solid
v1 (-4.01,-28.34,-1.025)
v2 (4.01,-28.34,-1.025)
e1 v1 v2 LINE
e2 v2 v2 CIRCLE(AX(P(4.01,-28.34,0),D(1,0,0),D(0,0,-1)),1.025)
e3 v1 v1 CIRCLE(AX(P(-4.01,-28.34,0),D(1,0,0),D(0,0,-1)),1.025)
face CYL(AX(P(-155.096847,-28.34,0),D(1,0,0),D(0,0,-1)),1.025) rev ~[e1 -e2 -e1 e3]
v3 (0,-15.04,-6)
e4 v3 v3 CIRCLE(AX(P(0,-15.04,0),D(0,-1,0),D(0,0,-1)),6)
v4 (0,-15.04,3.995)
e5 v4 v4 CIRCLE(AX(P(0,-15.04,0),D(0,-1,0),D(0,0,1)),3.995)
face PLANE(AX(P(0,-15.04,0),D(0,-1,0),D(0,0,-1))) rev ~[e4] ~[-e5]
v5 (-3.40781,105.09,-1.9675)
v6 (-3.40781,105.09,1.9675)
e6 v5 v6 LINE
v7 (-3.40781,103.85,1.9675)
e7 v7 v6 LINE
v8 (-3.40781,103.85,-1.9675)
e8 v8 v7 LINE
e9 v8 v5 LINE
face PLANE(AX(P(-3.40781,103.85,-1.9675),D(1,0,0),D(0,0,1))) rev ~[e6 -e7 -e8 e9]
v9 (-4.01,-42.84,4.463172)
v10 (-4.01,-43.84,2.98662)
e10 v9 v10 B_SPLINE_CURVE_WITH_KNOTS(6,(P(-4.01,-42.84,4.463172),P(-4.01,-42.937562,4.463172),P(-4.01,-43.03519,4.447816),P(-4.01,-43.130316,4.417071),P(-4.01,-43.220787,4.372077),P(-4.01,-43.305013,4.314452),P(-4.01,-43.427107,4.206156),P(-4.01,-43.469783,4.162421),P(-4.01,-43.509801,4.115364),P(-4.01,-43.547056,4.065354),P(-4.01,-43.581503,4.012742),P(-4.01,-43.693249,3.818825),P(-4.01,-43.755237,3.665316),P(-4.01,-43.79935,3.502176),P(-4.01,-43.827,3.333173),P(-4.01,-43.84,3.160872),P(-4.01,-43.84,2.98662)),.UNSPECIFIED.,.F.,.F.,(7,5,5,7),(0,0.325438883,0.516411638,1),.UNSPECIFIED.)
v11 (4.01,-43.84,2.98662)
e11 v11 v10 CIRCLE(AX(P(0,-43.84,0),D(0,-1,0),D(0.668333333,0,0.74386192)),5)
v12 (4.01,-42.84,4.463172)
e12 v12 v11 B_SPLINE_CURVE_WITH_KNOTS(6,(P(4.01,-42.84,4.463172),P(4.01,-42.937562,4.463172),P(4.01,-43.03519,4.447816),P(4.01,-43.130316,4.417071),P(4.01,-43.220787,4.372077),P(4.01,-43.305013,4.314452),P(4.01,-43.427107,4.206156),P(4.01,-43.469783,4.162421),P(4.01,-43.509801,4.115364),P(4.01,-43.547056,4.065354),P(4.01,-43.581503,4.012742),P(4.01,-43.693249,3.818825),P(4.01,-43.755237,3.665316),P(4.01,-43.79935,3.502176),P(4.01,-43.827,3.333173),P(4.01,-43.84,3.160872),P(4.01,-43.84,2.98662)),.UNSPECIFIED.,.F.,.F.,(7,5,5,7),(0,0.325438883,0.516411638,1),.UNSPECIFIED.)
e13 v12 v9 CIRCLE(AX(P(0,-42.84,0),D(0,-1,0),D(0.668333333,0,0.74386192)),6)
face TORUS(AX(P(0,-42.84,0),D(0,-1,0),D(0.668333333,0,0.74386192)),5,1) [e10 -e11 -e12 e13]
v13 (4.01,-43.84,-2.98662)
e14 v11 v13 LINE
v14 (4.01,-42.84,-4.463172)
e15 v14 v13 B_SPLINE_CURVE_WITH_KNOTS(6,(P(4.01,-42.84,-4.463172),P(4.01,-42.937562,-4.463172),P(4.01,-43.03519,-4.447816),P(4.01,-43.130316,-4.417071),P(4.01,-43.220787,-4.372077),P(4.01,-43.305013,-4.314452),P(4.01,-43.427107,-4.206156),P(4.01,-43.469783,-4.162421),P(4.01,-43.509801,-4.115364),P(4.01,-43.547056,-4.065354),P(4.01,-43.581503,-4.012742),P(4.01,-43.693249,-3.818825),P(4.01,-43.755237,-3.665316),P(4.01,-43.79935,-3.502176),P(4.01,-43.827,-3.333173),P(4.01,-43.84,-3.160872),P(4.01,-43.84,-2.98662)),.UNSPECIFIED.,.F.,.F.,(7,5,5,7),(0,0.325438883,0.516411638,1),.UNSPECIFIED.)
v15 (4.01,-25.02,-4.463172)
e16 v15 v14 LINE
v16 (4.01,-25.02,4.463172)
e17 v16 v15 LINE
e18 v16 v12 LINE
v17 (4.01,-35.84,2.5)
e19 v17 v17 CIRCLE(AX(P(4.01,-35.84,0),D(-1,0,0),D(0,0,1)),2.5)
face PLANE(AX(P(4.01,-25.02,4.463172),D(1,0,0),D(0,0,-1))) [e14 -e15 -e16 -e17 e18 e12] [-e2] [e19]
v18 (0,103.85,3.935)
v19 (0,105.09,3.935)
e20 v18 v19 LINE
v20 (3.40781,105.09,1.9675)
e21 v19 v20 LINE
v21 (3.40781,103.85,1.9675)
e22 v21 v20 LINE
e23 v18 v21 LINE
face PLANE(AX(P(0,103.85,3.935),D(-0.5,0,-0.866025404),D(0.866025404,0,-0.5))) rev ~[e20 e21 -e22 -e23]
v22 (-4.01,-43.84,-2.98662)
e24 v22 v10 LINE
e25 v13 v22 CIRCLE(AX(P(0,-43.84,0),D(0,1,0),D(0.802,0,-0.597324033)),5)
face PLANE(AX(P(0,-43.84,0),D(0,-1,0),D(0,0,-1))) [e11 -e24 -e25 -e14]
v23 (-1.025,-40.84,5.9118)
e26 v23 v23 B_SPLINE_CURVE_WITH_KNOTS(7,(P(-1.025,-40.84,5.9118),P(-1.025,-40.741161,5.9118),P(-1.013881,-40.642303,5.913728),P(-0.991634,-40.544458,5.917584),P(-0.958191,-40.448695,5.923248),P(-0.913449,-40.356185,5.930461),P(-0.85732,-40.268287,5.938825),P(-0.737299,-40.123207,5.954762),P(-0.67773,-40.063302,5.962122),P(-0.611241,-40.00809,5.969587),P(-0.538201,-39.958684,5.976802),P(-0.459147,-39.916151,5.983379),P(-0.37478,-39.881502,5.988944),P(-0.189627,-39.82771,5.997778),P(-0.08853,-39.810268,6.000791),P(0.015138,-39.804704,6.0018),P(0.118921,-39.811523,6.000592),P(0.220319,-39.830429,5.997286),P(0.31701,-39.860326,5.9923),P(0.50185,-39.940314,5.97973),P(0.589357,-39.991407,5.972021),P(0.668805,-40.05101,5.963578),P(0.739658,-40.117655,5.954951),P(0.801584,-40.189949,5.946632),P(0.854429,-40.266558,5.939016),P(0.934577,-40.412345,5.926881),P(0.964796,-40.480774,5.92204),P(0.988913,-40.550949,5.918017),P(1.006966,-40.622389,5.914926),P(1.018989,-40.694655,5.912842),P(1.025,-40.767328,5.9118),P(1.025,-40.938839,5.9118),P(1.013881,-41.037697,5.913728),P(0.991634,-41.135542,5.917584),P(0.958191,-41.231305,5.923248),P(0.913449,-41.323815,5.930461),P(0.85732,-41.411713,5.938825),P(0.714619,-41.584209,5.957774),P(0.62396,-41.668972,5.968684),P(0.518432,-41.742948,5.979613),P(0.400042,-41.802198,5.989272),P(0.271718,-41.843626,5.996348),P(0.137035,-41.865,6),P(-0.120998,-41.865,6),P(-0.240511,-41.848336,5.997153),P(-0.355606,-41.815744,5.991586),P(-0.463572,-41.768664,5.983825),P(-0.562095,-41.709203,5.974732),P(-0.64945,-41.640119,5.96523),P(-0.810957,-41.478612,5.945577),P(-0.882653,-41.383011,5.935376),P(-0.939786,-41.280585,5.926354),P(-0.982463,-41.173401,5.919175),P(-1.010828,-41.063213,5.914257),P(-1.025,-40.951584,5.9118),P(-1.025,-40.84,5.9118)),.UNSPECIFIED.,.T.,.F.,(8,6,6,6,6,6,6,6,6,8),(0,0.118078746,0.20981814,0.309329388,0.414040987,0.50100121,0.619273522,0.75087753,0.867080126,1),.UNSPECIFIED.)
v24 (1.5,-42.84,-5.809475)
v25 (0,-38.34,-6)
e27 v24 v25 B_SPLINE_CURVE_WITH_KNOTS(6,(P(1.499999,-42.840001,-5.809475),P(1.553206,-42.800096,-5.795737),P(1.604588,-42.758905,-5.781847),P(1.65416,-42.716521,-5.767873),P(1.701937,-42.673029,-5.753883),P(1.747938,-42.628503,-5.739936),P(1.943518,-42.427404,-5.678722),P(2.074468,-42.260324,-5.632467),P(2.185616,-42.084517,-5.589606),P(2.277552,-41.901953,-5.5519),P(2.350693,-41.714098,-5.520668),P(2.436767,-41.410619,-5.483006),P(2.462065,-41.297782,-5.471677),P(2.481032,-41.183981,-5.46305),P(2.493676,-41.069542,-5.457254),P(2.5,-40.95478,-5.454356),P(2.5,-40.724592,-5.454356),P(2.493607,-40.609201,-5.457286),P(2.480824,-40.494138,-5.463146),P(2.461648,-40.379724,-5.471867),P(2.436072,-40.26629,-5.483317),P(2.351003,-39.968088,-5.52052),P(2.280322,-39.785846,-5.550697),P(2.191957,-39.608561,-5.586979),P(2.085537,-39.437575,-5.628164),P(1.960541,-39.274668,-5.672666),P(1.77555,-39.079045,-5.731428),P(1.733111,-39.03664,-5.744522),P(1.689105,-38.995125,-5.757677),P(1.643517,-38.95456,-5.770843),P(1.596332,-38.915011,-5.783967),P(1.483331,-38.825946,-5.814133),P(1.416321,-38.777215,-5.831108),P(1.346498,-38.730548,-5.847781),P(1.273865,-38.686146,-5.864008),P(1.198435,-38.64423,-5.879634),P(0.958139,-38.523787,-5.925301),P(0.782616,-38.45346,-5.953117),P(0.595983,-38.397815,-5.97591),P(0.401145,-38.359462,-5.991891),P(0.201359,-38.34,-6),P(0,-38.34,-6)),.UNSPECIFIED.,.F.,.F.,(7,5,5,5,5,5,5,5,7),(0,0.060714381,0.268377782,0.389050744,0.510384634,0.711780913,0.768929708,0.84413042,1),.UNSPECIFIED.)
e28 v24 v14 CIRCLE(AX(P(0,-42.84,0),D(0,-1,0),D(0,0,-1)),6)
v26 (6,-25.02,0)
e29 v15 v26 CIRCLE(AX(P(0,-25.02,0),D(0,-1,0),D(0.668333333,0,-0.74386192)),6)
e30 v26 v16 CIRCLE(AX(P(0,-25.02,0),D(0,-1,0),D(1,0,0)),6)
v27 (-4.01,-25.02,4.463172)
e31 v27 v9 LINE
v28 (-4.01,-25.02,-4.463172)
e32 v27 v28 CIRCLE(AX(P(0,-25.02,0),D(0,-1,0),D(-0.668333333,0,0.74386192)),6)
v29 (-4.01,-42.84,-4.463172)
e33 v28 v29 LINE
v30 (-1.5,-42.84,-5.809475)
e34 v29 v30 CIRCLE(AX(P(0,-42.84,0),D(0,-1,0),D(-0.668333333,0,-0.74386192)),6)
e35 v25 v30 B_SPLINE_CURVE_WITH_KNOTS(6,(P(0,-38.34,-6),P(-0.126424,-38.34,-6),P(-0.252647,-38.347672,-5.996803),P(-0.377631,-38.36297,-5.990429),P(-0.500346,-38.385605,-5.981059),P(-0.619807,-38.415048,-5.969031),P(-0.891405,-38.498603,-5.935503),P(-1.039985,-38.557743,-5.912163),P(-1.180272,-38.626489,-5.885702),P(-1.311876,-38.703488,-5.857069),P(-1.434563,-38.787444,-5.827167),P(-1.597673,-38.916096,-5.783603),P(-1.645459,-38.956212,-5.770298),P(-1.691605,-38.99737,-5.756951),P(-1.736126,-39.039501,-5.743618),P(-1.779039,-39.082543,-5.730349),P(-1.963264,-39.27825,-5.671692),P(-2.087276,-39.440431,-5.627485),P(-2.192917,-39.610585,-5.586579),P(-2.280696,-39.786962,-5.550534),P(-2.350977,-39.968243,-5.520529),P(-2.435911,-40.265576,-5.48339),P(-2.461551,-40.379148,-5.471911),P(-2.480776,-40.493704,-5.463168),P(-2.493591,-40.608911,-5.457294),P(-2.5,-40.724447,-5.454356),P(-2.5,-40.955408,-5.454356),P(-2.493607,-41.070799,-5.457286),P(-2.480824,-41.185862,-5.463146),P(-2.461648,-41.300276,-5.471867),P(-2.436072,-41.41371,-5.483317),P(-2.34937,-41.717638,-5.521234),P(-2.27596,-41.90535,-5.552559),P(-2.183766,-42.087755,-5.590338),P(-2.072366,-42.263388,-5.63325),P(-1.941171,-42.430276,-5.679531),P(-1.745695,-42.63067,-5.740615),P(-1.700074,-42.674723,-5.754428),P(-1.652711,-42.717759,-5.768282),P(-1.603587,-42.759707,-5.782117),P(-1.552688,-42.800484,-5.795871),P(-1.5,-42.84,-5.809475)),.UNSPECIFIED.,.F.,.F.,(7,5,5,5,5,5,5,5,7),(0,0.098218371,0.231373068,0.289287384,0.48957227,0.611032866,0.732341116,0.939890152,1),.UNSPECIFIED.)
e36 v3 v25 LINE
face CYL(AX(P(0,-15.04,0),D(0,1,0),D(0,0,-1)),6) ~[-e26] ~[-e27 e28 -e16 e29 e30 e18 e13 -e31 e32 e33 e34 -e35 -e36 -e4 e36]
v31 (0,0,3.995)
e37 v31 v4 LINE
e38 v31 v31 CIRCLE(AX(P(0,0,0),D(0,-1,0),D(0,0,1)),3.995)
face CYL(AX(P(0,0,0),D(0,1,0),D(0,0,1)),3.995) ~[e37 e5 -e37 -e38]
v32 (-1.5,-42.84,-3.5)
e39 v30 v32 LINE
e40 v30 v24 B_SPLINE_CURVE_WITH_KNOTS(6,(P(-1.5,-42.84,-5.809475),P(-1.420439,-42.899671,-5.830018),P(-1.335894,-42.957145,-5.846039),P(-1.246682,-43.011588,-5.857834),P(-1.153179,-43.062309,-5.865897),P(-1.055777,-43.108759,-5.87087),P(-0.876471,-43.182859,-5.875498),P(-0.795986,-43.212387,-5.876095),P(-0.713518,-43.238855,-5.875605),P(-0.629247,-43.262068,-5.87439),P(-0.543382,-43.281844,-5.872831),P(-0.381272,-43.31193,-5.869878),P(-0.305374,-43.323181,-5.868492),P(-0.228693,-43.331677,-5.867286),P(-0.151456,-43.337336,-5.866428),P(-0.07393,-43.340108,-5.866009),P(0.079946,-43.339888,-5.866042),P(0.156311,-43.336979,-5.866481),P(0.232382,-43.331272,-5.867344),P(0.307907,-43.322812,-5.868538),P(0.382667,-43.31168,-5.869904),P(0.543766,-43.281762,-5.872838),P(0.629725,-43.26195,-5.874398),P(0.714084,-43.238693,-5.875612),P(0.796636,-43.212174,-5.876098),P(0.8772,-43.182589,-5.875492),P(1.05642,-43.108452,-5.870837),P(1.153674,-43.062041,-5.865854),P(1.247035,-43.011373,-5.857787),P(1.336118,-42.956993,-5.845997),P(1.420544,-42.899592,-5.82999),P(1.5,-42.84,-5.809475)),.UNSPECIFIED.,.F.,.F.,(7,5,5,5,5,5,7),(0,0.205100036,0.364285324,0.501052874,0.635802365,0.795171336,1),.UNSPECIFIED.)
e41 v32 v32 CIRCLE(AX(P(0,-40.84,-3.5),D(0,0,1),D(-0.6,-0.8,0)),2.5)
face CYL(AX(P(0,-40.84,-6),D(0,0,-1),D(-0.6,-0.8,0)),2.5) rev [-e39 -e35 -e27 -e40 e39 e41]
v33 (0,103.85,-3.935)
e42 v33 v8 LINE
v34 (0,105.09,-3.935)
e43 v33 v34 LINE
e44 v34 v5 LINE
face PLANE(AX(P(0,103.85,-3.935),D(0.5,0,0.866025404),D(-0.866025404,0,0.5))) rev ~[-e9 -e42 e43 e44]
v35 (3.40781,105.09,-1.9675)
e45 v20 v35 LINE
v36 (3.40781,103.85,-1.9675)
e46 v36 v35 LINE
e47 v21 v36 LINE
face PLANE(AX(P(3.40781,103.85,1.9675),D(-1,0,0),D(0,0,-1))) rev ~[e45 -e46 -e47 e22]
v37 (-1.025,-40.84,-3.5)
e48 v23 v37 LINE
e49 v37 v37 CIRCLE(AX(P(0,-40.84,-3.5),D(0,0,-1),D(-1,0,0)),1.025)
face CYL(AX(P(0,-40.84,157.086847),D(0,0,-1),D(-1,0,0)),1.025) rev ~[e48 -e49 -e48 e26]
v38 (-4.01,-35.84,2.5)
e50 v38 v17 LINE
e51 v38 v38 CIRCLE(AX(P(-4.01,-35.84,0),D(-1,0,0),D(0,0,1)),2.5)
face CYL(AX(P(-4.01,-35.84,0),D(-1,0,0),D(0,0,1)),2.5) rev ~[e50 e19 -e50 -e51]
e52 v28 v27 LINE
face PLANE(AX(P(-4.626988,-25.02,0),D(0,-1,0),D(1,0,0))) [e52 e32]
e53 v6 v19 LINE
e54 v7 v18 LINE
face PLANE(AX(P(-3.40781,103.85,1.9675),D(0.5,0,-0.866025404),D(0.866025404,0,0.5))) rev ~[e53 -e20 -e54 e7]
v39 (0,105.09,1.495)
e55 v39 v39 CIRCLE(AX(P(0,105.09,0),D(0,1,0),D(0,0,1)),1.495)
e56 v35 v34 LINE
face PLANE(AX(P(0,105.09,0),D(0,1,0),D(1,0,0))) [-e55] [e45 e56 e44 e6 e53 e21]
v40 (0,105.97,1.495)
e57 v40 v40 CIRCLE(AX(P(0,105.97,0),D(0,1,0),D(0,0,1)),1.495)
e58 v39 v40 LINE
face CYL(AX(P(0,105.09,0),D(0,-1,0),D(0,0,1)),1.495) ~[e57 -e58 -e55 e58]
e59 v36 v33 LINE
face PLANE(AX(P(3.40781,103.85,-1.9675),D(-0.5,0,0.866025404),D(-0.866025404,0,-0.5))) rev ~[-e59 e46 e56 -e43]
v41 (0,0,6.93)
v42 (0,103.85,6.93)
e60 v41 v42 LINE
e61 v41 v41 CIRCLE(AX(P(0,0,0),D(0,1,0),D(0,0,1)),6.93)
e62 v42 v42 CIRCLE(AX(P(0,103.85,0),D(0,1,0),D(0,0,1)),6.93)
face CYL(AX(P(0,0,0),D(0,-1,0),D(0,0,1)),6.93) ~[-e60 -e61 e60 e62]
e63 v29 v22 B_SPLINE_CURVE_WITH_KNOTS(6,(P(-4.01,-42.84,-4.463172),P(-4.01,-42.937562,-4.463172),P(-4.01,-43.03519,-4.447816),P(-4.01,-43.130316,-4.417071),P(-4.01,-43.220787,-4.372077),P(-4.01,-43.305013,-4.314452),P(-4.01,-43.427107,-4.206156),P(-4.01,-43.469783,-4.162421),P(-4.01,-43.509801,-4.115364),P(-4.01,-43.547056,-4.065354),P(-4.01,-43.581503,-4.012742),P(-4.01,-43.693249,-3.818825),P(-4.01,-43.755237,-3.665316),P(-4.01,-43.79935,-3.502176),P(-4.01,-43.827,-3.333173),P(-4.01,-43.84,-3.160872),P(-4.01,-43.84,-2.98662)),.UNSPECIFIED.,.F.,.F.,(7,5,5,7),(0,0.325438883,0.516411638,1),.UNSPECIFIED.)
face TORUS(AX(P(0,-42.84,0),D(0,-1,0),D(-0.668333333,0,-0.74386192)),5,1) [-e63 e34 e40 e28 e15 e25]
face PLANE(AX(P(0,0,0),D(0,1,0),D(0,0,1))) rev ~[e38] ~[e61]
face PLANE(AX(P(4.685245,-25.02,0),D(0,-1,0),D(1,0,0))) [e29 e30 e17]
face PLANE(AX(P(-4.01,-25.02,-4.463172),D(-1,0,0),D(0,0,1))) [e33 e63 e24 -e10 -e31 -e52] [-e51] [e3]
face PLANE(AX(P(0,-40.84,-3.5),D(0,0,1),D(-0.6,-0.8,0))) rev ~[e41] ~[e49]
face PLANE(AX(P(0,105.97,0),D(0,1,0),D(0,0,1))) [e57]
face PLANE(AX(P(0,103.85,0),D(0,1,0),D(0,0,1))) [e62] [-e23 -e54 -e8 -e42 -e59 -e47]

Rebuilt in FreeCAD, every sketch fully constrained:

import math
import FreeCAD as App
import Part
import Sketcher

V = App.Vector
Q = App.Units.Quantity


def edges_at(feature, points):
    """Names of the edges that pass closest to the given points."""
    edges = feature.Shape.Edges
    near = lambda p: min(range(len(edges)), key=lambda i: edges[i].distToShape(Part.Vertex(*p))[0])
    return sorted({f"Edge{near(p) + 1}" for p in points})

doc = App.newDocument("Part")
body = doc.addObject("PartDesign::Body", "Body")

# Sketch on XZ plane
sketch1 = doc.addObject("Sketcher::SketchObject", "Sketch")
body.addObject(sketch1)
sketch1.AttachmentSupport = (doc.XZ_Plane, [""])
sketch1.MapMode = "FlatFace"
sketch1.addGeometry(Part.Circle(V(0, 0, 0), V(0, 0, 1), 7), False)
sketch1.addConstraint([
    Sketcher.Constraint("Coincident", 0, 3, -1, 1),
    Sketcher.Constraint("Diameter", 0, Q("13.86 mm")),
])
pad1 = doc.addObject("PartDesign::Pad", "Pad")
body.addObject(pad1)
pad1.Profile = sketch1
pad1.Length = 103.85
pad1.Reversed = True

# Sketch on XZ plane
sketch2 = doc.addObject("Sketcher::SketchObject", "Sketch001")
body.addObject(sketch2)
sketch2.AttachmentSupport = (doc.XZ_Plane, [""])
sketch2.MapMode = "FlatFace"
sketch2.AttachmentOffset = App.Placement(V(0, 0, -103.85), App.Rotation())
sketch2.addGeometry([
    Part.LineSegment(V(-3.4, -2, 0), V(-3.4, 2, 0)),  # 0
    Part.LineSegment(V(-3.4, 2, 0), V(0, 3.9, 0)),  # 1
    Part.LineSegment(V(0, 3.9, 0), V(3.4, 2, 0)),  # 2
    Part.LineSegment(V(3.4, 2, 0), V(3.4, -2, 0)),  # 3
    Part.LineSegment(V(3.4, -2, 0), V(0, -3.9, 0)),  # 4
    Part.LineSegment(V(0, -3.9, 0), V(-3.4, -2, 0)),  # 5
], False)
sketch2.addConstraint([
    Sketcher.Constraint("Coincident", 0, 2, 1, 1),
    Sketcher.Constraint("Coincident", 1, 2, 2, 1),
    Sketcher.Constraint("Coincident", 2, 2, 3, 1),
    Sketcher.Constraint("Coincident", 3, 2, 4, 1),
    Sketcher.Constraint("Coincident", 4, 2, 5, 1),
    Sketcher.Constraint("Coincident", 5, 2, 0, 1),
    Sketcher.Constraint("Vertical", 0),
    Sketcher.Constraint("Vertical", 3),
    Sketcher.Constraint("Symmetric", 0, 2, 3, 2, -1, 1),
    Sketcher.Constraint("Symmetric", 1, 2, 4, 2, -1, 1),
    Sketcher.Constraint("PointOnObject", 1, 2, -2),
    Sketcher.Constraint("Parallel", 2, 5),
    Sketcher.Constraint("Horizontal", 0, 2, 2, 2),
    Sketcher.Constraint("Angle", 1, Q("30 deg")),
    Sketcher.Constraint("DistanceY", 0, 1, 0, 2, Q("3.935 mm")),
    Sketcher.Constraint("DistanceY", 4, 2, 1, 2, Q("7.87 mm")),
])
pad2 = doc.addObject("PartDesign::Pad", "Pad001")
body.addObject(pad2)
pad2.Profile = sketch2
pad2.Length = 1.24
pad2.Reversed = True

# Sketch on XZ plane
sketch3 = doc.addObject("Sketcher::SketchObject", "Sketch002")
body.addObject(sketch3)
sketch3.AttachmentSupport = (doc.XZ_Plane, [""])
sketch3.MapMode = "FlatFace"
sketch3.AttachmentOffset = App.Placement(V(0, 0, -105.09), App.Rotation())
sketch3.addGeometry(Part.Circle(V(0, 0, 0), V(0, 0, 1), 1.5), False)
sketch3.addConstraint([
    Sketcher.Constraint("Coincident", 0, 3, -1, 1),
    Sketcher.Constraint("Diameter", 0, Q("2.99 mm")),
])
pad3 = doc.addObject("PartDesign::Pad", "Pad002")
body.addObject(pad3)
pad3.Profile = sketch3
pad3.Length = 0.88
pad3.Reversed = True

# Sketch on XZ plane
sketch4 = doc.addObject("Sketcher::SketchObject", "Sketch003")
body.addObject(sketch4)
sketch4.AttachmentSupport = (doc.XZ_Plane, [""])
sketch4.MapMode = "FlatFace"
sketch4.addGeometry(Part.Circle(V(0, 0, 0), V(0, 0, 1), 4), False)
sketch4.addConstraint([
    Sketcher.Constraint("Coincident", 0, 3, -1, 1),
    Sketcher.Constraint("Diameter", 0, Q("7.99 mm")),
])
pad4 = doc.addObject("PartDesign::Pad", "Pad003")
body.addObject(pad4)
pad4.Profile = sketch4
pad4.Length = 15.04

# Sketch on XZ plane
sketch5 = doc.addObject("Sketcher::SketchObject", "Sketch004")
body.addObject(sketch5)
sketch5.AttachmentSupport = (doc.XZ_Plane, [""])
sketch5.MapMode = "FlatFace"
sketch5.AttachmentOffset = App.Placement(V(0, 0, 15.04), App.Rotation())
sketch5.addGeometry(Part.Circle(V(0, 0, 0), V(0, 0, 1), 6), False)
sketch5.addConstraint([
    Sketcher.Constraint("Coincident", 0, 3, -1, 1),
    Sketcher.Constraint("Diameter", 0, Q("12 mm")),
])
pad5 = doc.addObject("PartDesign::Pad", "Pad004")
body.addObject(pad5)
pad5.Profile = sketch5
pad5.Length = 28.8

# Sketch on XZ plane
sketch6 = doc.addObject("Sketcher::SketchObject", "Sketch005")
body.addObject(sketch6)
sketch6.AttachmentSupport = (doc.XZ_Plane, [""])
sketch6.MapMode = "FlatFace"
sketch6.AttachmentOffset = App.Placement(V(0, 0, 25.02), App.Rotation())
sketch6.addGeometry([
    Part.LineSegment(V(-4, -4.5, 0), V(-4, 4.5, 0)),  # 0
    Part.ArcOfCircle(Part.Circle(V(0, 0, 0), V(0, 0, 1), 6), math.radians(132), math.radians(228)),  # 1
    Part.ArcOfCircle(Part.Circle(V(0, 0, 0), V(0, 0, 1), 6), math.radians(0), math.radians(48)),  # 2
    Part.LineSegment(V(4, 4.5, 0), V(4, -4.5, 0)),  # 3
    Part.ArcOfCircle(Part.Circle(V(0, 0, 0), V(0, 0, 1), 6), math.radians(-48), math.radians(0)),  # 4
], False)
sketch6.addConstraint([
    Sketcher.Constraint("Coincident", 0, 1, 1, 2),
    Sketcher.Constraint("Coincident", 1, 1, 0, 2),
    Sketcher.Constraint("Coincident", 2, 2, 3, 1),
    Sketcher.Constraint("Coincident", 3, 2, 4, 1),
    Sketcher.Constraint("Tangent", 4, 2, 2, 1),
    Sketcher.Constraint("Vertical", 0),
    Sketcher.Constraint("Vertical", 3),
    Sketcher.Constraint("Coincident", 1, 3, -1, 1),
    Sketcher.Constraint("Coincident", 2, 3, -1, 1),
    Sketcher.Constraint("Equal", 1, 2),
    Sketcher.Constraint("Equal", 2, 4),
    Sketcher.Constraint("PointOnObject", 4, 2, -1),
    Sketcher.Constraint("Horizontal", 1, 1, 2, 2),
    Sketcher.Constraint("Radius", 1, Q("6 mm")),
    Sketcher.Constraint("DistanceX", 0, 1, -1, 1, Q("4.01 mm")),
])
pocket1 = doc.addObject("PartDesign::Pocket", "Pocket")
body.addObject(pocket1)
pocket1.Profile = sketch6
pocket1.Length = 18.82
pocket1.Reversed = True

# Sketch on YZ plane
sketch7 = doc.addObject("Sketcher::SketchObject", "Sketch006")
body.addObject(sketch7)
sketch7.AttachmentSupport = (doc.YZ_Plane, [""])
sketch7.MapMode = "FlatFace"
sketch7.AttachmentOffset = App.Placement(V(0, 0, -4.01), App.Rotation())
sketch7.addGeometry(Part.Circle(V(-35.8, 0, 0), V(0, 0, 1), 2.5), False)
sketch7.addConstraint([
    Sketcher.Constraint("PointOnObject", 0, 3, -1),
    Sketcher.Constraint("Diameter", 0, Q("5 mm")),
    Sketcher.Constraint("DistanceX", 0, 3, -1, 1, Q("35.84 mm")),
])
pocket2 = doc.addObject("PartDesign::Pocket", "Pocket001")
body.addObject(pocket2)
pocket2.Profile = sketch7
pocket2.Type = "ThroughAll"
pocket2.Reversed = True

# Sketch on YZ plane
sketch8 = doc.addObject("Sketcher::SketchObject", "Sketch007")
body.addObject(sketch8)
sketch8.AttachmentSupport = (doc.YZ_Plane, [""])
sketch8.MapMode = "FlatFace"
sketch8.AttachmentOffset = App.Placement(V(0, 0, -4.01), App.Rotation())
sketch8.addGeometry(Part.Circle(V(-28.3, 0, 0), V(0, 0, 1), 1), False)
sketch8.addConstraint([
    Sketcher.Constraint("PointOnObject", 0, 3, -1),
    Sketcher.Constraint("Diameter", 0, Q("2.05 mm")),
    Sketcher.Constraint("DistanceX", 0, 3, -1, 1, Q("28.34 mm")),
])
doc.recompute()
hole = doc.addObject("PartDesign::Hole", "Hole")
body.addObject(hole)
hole.Profile = sketch8
hole.ThreadType = "None"
hole.Diameter = 2.05
hole.DepthType = "ThroughAll"
hole.Reversed = True
doc.recompute()

fillet = doc.addObject("PartDesign::Fillet", "Fillet")
body.addObject(fillet)
fillet.Base = (hole, edges_at(hole, [(2.147, -43.84, -5.603), (0, -43.84, 6)]))
fillet.Radius = 1

# Sketch on XY plane
sketch9 = doc.addObject("Sketcher::SketchObject", "Sketch008")
body.addObject(sketch9)
sketch9.AttachmentSupport = (doc.XY_Plane, [""])
sketch9.MapMode = "FlatFace"
sketch9.AttachmentOffset = App.Placement(V(0, 0, 6), App.Rotation())
sketch9.addGeometry(Part.Circle(V(0, -40.8, 0), V(0, 0, 1), 1), False)
sketch9.addConstraint([
    Sketcher.Constraint("PointOnObject", 0, 3, -2),
    Sketcher.Constraint("Diameter", 0, Q("2.05 mm")),
    Sketcher.Constraint("DistanceY", 0, 3, -1, 1, Q("40.84 mm")),
])
doc.recompute()
hole2 = doc.addObject("PartDesign::Hole", "Hole001")
body.addObject(hole2)
hole2.Profile = sketch9
hole2.ThreadType = "None"
hole2.Diameter = 2.05
hole2.DepthType = "ThroughAll"

# Sketch on XY plane
sketch10 = doc.addObject("Sketcher::SketchObject", "Sketch009")
body.addObject(sketch10)
sketch10.AttachmentSupport = (doc.XY_Plane, [""])
sketch10.MapMode = "FlatFace"
sketch10.AttachmentOffset = App.Placement(V(0, 0, -6), App.Rotation())
sketch10.addGeometry(Part.Circle(V(0, -40.8, 0), V(0, 0, 1), 2.5), False)
sketch10.addConstraint([
    Sketcher.Constraint("PointOnObject", 0, 3, -2),
    Sketcher.Constraint("Diameter", 0, Q("5 mm")),
    Sketcher.Constraint("DistanceY", 0, 3, -1, 1, Q("40.84 mm")),
])
pocket3 = doc.addObject("PartDesign::Pocket", "Pocket002")
body.addObject(pocket3)
pocket3.Profile = sketch10
pocket3.Length = 2.5
pocket3.Reversed = True

doc.recompute()
